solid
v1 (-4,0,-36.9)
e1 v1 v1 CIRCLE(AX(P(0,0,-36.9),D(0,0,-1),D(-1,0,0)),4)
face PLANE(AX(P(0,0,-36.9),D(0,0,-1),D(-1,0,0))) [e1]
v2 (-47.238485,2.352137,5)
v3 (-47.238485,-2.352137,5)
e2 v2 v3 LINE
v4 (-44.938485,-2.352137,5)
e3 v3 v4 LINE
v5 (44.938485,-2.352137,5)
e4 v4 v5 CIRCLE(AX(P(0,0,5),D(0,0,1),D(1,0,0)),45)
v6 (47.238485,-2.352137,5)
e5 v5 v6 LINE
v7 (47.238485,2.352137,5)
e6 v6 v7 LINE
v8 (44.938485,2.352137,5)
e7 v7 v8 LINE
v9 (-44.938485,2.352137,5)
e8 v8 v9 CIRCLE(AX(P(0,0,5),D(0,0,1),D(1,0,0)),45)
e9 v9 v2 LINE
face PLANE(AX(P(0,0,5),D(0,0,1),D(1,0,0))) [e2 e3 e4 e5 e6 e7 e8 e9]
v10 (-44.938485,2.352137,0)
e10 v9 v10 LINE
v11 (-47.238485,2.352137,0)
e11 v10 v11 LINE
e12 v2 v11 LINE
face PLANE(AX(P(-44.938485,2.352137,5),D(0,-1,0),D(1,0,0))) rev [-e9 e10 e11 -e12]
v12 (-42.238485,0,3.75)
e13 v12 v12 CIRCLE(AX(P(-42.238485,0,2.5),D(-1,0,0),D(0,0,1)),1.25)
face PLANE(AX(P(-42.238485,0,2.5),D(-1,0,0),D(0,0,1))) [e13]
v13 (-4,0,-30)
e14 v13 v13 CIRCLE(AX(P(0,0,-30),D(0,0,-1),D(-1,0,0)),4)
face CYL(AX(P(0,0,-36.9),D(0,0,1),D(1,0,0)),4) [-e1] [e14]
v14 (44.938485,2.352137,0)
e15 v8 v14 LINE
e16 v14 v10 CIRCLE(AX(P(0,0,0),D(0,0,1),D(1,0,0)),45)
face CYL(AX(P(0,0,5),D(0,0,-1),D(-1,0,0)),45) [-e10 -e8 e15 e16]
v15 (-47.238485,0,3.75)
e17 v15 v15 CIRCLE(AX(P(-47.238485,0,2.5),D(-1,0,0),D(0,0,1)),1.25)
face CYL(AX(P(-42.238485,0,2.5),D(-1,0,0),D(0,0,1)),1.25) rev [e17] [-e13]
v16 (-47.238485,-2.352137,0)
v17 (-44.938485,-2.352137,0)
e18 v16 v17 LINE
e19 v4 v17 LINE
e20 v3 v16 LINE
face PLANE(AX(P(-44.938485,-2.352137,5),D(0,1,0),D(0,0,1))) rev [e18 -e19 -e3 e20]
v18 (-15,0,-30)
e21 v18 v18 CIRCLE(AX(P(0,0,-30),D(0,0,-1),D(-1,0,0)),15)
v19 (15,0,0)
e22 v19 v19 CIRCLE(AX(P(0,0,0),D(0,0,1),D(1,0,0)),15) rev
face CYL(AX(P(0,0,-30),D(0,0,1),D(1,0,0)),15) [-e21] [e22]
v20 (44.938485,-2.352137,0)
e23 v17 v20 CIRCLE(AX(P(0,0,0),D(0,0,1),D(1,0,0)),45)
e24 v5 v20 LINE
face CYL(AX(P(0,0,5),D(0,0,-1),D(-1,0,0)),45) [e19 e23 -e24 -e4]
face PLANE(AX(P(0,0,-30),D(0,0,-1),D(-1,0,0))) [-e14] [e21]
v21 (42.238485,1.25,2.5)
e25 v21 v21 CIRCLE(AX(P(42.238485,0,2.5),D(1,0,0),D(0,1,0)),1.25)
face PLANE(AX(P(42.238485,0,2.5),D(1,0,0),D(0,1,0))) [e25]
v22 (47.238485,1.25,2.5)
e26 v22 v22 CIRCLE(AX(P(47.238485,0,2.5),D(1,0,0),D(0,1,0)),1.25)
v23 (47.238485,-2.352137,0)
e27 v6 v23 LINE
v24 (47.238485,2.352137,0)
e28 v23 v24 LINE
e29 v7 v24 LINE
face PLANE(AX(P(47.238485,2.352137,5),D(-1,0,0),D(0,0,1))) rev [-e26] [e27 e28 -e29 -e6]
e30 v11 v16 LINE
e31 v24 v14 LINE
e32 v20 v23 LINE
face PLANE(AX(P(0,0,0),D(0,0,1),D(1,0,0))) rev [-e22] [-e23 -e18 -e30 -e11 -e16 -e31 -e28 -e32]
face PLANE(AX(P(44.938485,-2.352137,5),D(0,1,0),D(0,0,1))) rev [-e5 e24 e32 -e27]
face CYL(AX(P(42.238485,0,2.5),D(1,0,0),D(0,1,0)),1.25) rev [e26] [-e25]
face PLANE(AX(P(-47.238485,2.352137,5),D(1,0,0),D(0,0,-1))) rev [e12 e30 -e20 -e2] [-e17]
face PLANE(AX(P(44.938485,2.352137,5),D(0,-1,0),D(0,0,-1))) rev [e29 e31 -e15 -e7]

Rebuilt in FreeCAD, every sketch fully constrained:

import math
import FreeCAD as App
import Part
import Sketcher
Q = App.Units.Quantity

doc = App.newDocument("Part")
body = doc.addObject("PartDesign::Body", "Body")

# Sketch on XY plane
sketch1 = body.newObject("Sketcher::SketchObject", "Sketch")
sketch1.AttachmentSupport = (doc.getObject("XY_Plane"), [""])
sketch1.MapMode = "FlatFace"
sketch1.addGeometry(Part.LineSegment(App.Vector(-44.9, 2.4, 0), App.Vector(-47.2, 2.4, 0)), False)
sketch1.addGeometry(Part.LineSegment(App.Vector(-47.2, 2.4, 0), App.Vector(-47.2, -2.4, 0)), False)
sketch1.addGeometry(Part.LineSegment(App.Vector(-47.2, -2.4, 0), App.Vector(-44.9, -2.4, 0)), False)
sketch1.addGeometry(Part.ArcOfCircle(Part.Circle(App.Vector(0, 0, 0), App.Vector(0, 0, 1), 45), math.radians(-177), math.radians(-3)), False)
sketch1.addGeometry(Part.LineSegment(App.Vector(44.9, -2.4, 0), App.Vector(47.2, -2.4, 0)), False)
sketch1.addGeometry(Part.LineSegment(App.Vector(47.2, -2.4, 0), App.Vector(47.2, 2.4, 0)), False)
sketch1.addGeometry(Part.LineSegment(App.Vector(47.2, 2.4, 0), App.Vector(44.9, 2.4, 0)), False)
sketch1.addGeometry(Part.ArcOfCircle(Part.Circle(App.Vector(0, 0, 0), App.Vector(0, 0, 1), 45), math.radians(3), math.radians(177)), False)
sketch1.addConstraint(Sketcher.Constraint("Coincident", 0, 2, 1, 1))
sketch1.addConstraint(Sketcher.Constraint("Coincident", 1, 2, 2, 1))
sketch1.addConstraint(Sketcher.Constraint("Coincident", 2, 2, 3, 1))
sketch1.addConstraint(Sketcher.Constraint("Coincident", 3, 2, 4, 1))
sketch1.addConstraint(Sketcher.Constraint("Coincident", 4, 2, 5, 1))
sketch1.addConstraint(Sketcher.Constraint("Coincident", 5, 2, 6, 1))
sketch1.addConstraint(Sketcher.Constraint("Coincident", 6, 2, 7, 1))
sketch1.addConstraint(Sketcher.Constraint("Coincident", 7, 2, 0, 1))
sketch1.addConstraint(Sketcher.Constraint("Horizontal", 0))
sketch1.addConstraint(Sketcher.Constraint("Vertical", 1))
sketch1.addConstraint(Sketcher.Constraint("Horizontal", 2))
sketch1.addConstraint(Sketcher.Constraint("Horizontal", 4))
sketch1.addConstraint(Sketcher.Constraint("Vertical", 5))
sketch1.addConstraint(Sketcher.Constraint("Horizontal", 6))
sketch1.addConstraint(Sketcher.Constraint("Coincident", 3, 3, -1, 1))
sketch1.addConstraint(Sketcher.Constraint("Coincident", 7, 3, -1, 1))
sketch1.addConstraint(Sketcher.Constraint("Equal", 3, 7))
sketch1.addConstraint(Sketcher.Constraint("Symmetric", 0, 2, 4, 2, -1, 1))
sketch1.addConstraint(Sketcher.Constraint("Horizontal", 2, 2, 3, 2))
sketch1.addConstraint(Sketcher.Constraint("Horizontal", 0, 2, 5, 2))
sketch1.addConstraint(Sketcher.Constraint("Radius", 3, Q("45 mm")))
sketch1.addConstraint(Sketcher.Constraint("DistanceX", 0, 2, 0, 1, Q("2.3 mm")))
sketch1.addConstraint(Sketcher.Constraint("DistanceY", 1, 2, 1, 1, Q("4.704274 mm")))
pad1 = body.newObject("PartDesign::Pad", "Pad")
pad1.Profile = sketch1
pad1.Length = 5

# Sketch on XY plane
sketch2 = body.newObject("Sketcher::SketchObject", "Sketch001")
sketch2.AttachmentSupport = (doc.getObject("XY_Plane"), [""])
sketch2.MapMode = "FlatFace"
sketch2.addGeometry(Part.Circle(App.Vector(0, 0, 0), App.Vector(0, 0, 1), 15), False)
sketch2.addConstraint(Sketcher.Constraint("Coincident", 0, 3, -1, 1))
sketch2.addConstraint(Sketcher.Constraint("Diameter", 0, Q("30 mm")))
pad2 = body.newObject("PartDesign::Pad", "Pad001")
pad2.Profile = sketch2
pad2.Length = 30
pad2.Reversed = True

# Sketch on XY plane
sketch3 = body.newObject("Sketcher::SketchObject", "Sketch002")
sketch3.AttachmentSupport = (doc.getObject("XY_Plane"), [""])
sketch3.MapMode = "FlatFace"
sketch3.AttachmentOffset = App.Placement(App.Vector(0, 0, -30), App.Rotation())
sketch3.addGeometry(Part.Circle(App.Vector(0, 0, 0), App.Vector(0, 0, 1), 4), False)
sketch3.addConstraint(Sketcher.Constraint("Coincident", 0, 3, -1, 1))
sketch3.addConstraint(Sketcher.Constraint("Diameter", 0, Q("8 mm")))
pad3 = body.newObject("PartDesign::Pad", "Pad002")
pad3.Profile = sketch3
pad3.Length = 6.9
pad3.Reversed = True

# Sketch on YZ plane
sketch4 = body.newObject("Sketcher::SketchObject", "Sketch003")
sketch4.AttachmentSupport = (doc.getObject("YZ_Plane"), [""])
sketch4.MapMode = "FlatFace"
sketch4.AttachmentOffset = App.Placement(App.Vector(0, 0, 47.238485), App.Rotation())
sketch4.addGeometry(Part.Circle(App.Vector(0, 2.5, 0), App.Vector(0, 0, 1), 1.2), False)
sketch4.addConstraint(Sketcher.Constraint("PointOnObject", 0, 3, -2))
sketch4.addConstraint(Sketcher.Constraint("Diameter", 0, Q("2.5 mm")))
sketch4.addConstraint(Sketcher.Constraint("DistanceY", -1, 1, 0, 3, Q("2.5 mm")))
pocket1 = body.newObject("PartDesign::Pocket", "Pocket")
pocket1.Profile = sketch4
pocket1.Length = 5

# Sketch on YZ plane
sketch5 = body.newObject("Sketcher::SketchObject", "Sketch004")
sketch5.AttachmentSupport = (doc.getObject("YZ_Plane"), [""])
sketch5.MapMode = "FlatFace"
sketch5.AttachmentOffset = App.Placement(App.Vector(0, 0, -47.238485), App.Rotation())
sketch5.addGeometry(Part.Circle(App.Vector(0, 2.5, 0), App.Vector(0, 0, 1), 1.2), False)
sketch5.addConstraint(Sketcher.Constraint("PointOnObject", 0, 3, -2))
sketch5.addConstraint(Sketcher.Constraint("Diameter", 0, Q("2.5 mm")))
sketch5.addConstraint(Sketcher.Constraint("DistanceY", -1, 1, 0, 3, Q("2.5 mm")))
pocket2 = body.newObject("PartDesign::Pocket", "Pocket001")
pocket2.Profile = sketch5
pocket2.Length = 5
pocket2.Reversed = True

doc.recompute()
